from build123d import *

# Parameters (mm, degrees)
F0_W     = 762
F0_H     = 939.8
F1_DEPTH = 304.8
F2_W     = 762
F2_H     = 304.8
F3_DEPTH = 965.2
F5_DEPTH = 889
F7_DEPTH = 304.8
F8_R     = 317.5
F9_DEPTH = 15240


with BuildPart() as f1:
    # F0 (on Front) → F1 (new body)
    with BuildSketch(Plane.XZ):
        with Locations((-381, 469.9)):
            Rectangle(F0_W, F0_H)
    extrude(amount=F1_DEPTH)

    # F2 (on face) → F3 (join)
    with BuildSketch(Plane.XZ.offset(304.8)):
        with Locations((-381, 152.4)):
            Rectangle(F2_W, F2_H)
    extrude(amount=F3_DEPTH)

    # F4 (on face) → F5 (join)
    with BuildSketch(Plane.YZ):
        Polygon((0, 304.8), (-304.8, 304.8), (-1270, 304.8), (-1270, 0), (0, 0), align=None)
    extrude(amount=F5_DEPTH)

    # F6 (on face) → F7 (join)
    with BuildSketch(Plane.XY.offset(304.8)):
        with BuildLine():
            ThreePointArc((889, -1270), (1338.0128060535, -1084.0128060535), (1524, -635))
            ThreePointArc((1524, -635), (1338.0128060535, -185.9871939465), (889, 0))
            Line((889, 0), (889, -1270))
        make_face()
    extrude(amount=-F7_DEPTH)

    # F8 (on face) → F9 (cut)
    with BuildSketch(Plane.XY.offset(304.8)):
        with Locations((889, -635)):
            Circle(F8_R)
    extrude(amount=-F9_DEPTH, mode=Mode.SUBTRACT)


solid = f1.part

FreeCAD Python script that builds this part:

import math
import FreeCAD as App
import Part
import Sketcher
Q = App.Units.Quantity


def add_polygon(sketch, points):
    """Adds a closed chain of lines whose ends are joined by coincident constraints."""
    first, n = sketch.GeometryCount, len(points)
    for a, b in zip(points, points[1:] + points[:1]):
        sketch.addGeometry(Part.LineSegment(App.Vector(*a, 0), App.Vector(*b, 0)), False)
    for i in range(n):
        sketch.addConstraint(Sketcher.Constraint("Coincident", first + i, 2, first + (i + 1) % n, 1))

doc = App.newDocument("Part")
body = doc.addObject("PartDesign::Body", "Body")

# Sketch on XZ plane
sketch1 = body.newObject("Sketcher::SketchObject", "Sketch")
sketch1.AttachmentSupport = (doc.getObject("XZ_Plane"), [""])
sketch1.MapMode = "FlatFace"
add_polygon(sketch1, [(-762, 940), (-762, 0), (0, 0), (0, 940)])  # lines 0-3
sketch1.addConstraint(Sketcher.Constraint("Vertical", 0))
sketch1.addConstraint(Sketcher.Constraint("Horizontal", 1))
sketch1.addConstraint(Sketcher.Constraint("Vertical", 2))
sketch1.addConstraint(Sketcher.Constraint("Horizontal", 3))
sketch1.addConstraint(Sketcher.Constraint("Coincident", 1, 2, -1, 1))
sketch1.addConstraint(Sketcher.Constraint("DistanceX", 1, 1, 1, 2, Q("30 in")))
sketch1.addConstraint(Sketcher.Constraint("DistanceY", 0, 2, 0, 1, Q("37 in")))
pad1 = body.newObject("PartDesign::Pad", "Pad")
pad1.Profile = sketch1
pad1.Length = Q("12 in")

# Sketch on XZ plane
sketch2 = body.newObject("Sketcher::SketchObject", "Sketch001")
sketch2.AttachmentSupport = (doc.getObject("XZ_Plane"), [""])
sketch2.MapMode = "FlatFace"
sketch2.AttachmentOffset = App.Placement(App.Vector(0, 0, 12 * 25.4), App.Rotation())
add_polygon(sketch2, [(-762, 305), (-762, 0), (0, 0), (0, 305)])  # lines 0-3
sketch2.addConstraint(Sketcher.Constraint("Vertical", 0))
sketch2.addConstraint(Sketcher.Constraint("Horizontal", 1))
sketch2.addConstraint(Sketcher.Constraint("Vertical", 2))
sketch2.addConstraint(Sketcher.Constraint("Horizontal", 3))
sketch2.addConstraint(Sketcher.Constraint("Coincident", 1, 2, -1, 1))
sketch2.addConstraint(Sketcher.Constraint("DistanceX", 1, 1, 1, 2, Q("30 in")))
sketch2.addConstraint(Sketcher.Constraint("DistanceY", 0, 2, 0, 1, Q("12 in")))
pad2 = body.newObject("PartDesign::Pad", "Pad001")
pad2.Profile = sketch2
pad2.Length = Q("38 in")

# Sketch on YZ plane
sketch3 = body.newObject("Sketcher::SketchObject", "Sketch002")
sketch3.AttachmentSupport = (doc.getObject("YZ_Plane"), [""])
sketch3.MapMode = "FlatFace"
add_polygon(sketch3, [(0, 305), (-1270, 305), (-1270, 0), (0, 0)])  # lines 0-3
sketch3.addConstraint(Sketcher.Constraint("Horizontal", 0))
sketch3.addConstraint(Sketcher.Constraint("Vertical", 1))
sketch3.addConstraint(Sketcher.Constraint("Horizontal", 2))
sketch3.addConstraint(Sketcher.Constraint("Vertical", 3))
sketch3.addConstraint(Sketcher.Constraint("Coincident", 2, 2, -1, 1))
sketch3.addConstraint(Sketcher.Constraint("DistanceX", 0, 2, 0, 1, Q("50 in")))
sketch3.addConstraint(Sketcher.Constraint("DistanceY", 1, 2, 1, 1, Q("12 in")))
pad3 = body.newObject("PartDesign::Pad", "Pad002")
pad3.Profile = sketch3
pad3.Length = Q("35 in")

# Sketch on XY plane
sketch4 = body.newObject("Sketcher::SketchObject", "Sketch003")
sketch4.AttachmentSupport = (doc.getObject("XY_Plane"), [""])
sketch4.MapMode = "FlatFace"
sketch4.AttachmentOffset = App.Placement(App.Vector(0, 0, 12 * 25.4), App.Rotation())
sketch4.addGeometry(Part.ArcOfCircle(Part.Circle(App.Vector(889, -635, 0), App.Vector(0, 0, 1), 635), math.radians(-90), math.radians(90)), False)
sketch4.addGeometry(Part.LineSegment(App.Vector(889, 0, 0), App.Vector(889, -1270, 0)), False)
sketch4.addConstraint(Sketcher.Constraint("Coincident", 0, 1, 1, 2))
sketch4.addConstraint(Sketcher.Constraint("Coincident", 1, 1, 0, 2))
sketch4.addConstraint(Sketcher.Constraint("Vertical", 1))
sketch4.addConstraint(Sketcher.Constraint("PointOnObject", 1, 1, -1))
sketch4.addConstraint(Sketcher.Constraint("Radius", 0, Q("25 in")))
sketch4.addConstraint(Sketcher.Constraint("DistanceX", -1, 1, 0, 3, Q("35 in")))
sketch4.addConstraint(Sketcher.Constraint("DistanceX", -1, 1, 1, 1, Q("35 in")))
pad4 = body.newObject("PartDesign::Pad", "Pad003")
pad4.Profile = sketch4
pad4.Length = Q("12 in")
pad4.Reversed = True

# Sketch on XY plane
sketch5 = body.newObject("Sketcher::SketchObject", "Sketch004")
sketch5.AttachmentSupport = (doc.getObject("XY_Plane"), [""])
sketch5.MapMode = "FlatFace"
sketch5.AttachmentOffset = App.Placement(App.Vector(0, 0, 12 * 25.4), App.Rotation())
sketch5.addGeometry(Part.Circle(App.Vector(889, -635, 0), App.Vector(0, 0, 1), 318), False)
sketch5.addConstraint(Sketcher.Constraint("Diameter", 0, Q("25 in")))
sketch5.addConstraint(Sketcher.Constraint("DistanceX", -1, 1, 0, 3, Q("35 in")))
sketch5.addConstraint(Sketcher.Constraint("DistanceY", 0, 3, -1, 1, Q("25 in")))
pocket1 = body.newObject("PartDesign::Pocket", "Pocket")
pocket1.Profile = sketch5
pocket1.Length = Q("600 in")

doc.recompute()
